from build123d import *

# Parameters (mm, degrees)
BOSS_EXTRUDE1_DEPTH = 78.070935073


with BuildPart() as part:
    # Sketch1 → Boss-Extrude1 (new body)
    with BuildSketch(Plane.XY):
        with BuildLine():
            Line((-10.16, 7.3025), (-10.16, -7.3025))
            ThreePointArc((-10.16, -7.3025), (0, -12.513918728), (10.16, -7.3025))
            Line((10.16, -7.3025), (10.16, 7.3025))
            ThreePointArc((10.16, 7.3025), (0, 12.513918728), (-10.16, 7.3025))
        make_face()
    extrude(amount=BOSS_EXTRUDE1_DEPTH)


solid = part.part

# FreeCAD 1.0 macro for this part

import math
import FreeCAD as App
import Part
import Sketcher

V = App.Vector
Q = App.Units.Quantity

doc = App.newDocument("Part")
params = doc.addObject("Spreadsheet::Sheet", "Params")
for row, (alias, value) in enumerate([
    ("sketch1_height", "0.575 in"),
    ("pad1_length", "78.070935 mm"),
], start=1):
    params.set(f"A{row}", alias)
    params.set(f"B{row}", "=" + value)
    params.setAlias(f"B{row}", alias)

body = doc.addObject("PartDesign::Body", "Body")

# Sketch on XY plane
sketch1 = body.newObject("Sketcher::SketchObject", "Sketch")
sketch1.AttachmentSupport = (doc.getObject("XY_Plane"), [""])
sketch1.MapMode = "FlatFace"
sketch1.addGeometry(Part.LineSegment(V(-10.16, 7.3025, 0), V(-10.16, -7.3025, 0)), False)
sketch1.addGeometry(Part.ArcOfCircle(Part.Circle(V(0, -0.004419, 0), V(0, 0, 1), 12.5095), math.radians(-144.309743), math.radians(-35.690257)), False)
sketch1.addGeometry(Part.LineSegment(V(10.16, -7.3025, 0), V(10.16, 7.3025, 0)), False)
sketch1.addGeometry(Part.ArcOfCircle(Part.Circle(V(0, 0.004419, 0), V(0, 0, 1), 12.5095), math.radians(35.690257), math.radians(144.309743)), False)
sketch1.addConstraint(Sketcher.Constraint("Coincident", 0, 2, 1, 1))
sketch1.addConstraint(Sketcher.Constraint("Coincident", 1, 2, 2, 1))
sketch1.addConstraint(Sketcher.Constraint("Coincident", 2, 2, 3, 1))
sketch1.addConstraint(Sketcher.Constraint("Coincident", 3, 2, 0, 1))
sketch1.addConstraint(Sketcher.Constraint("Vertical", 0))
sketch1.addConstraint(Sketcher.Constraint("Vertical", 2))
sketch1.addConstraint(Sketcher.Constraint("Equal", 1, 3))
sketch1.addConstraint(Sketcher.Constraint("Symmetric", 1, 3, 3, 3, -1, 1))
sketch1.addConstraint(Sketcher.Constraint("Symmetric", 0, 2, 1, 2, -2))
sketch1.addConstraint(Sketcher.Constraint("DistanceX", 0, 2, -1, 1, Q("0.4 in")))
sketch1.addConstraint(Sketcher.Constraint("Radius", 1, Q("0.4925 in")))
sketch1.addConstraint(Sketcher.Constraint("DistanceY", 0, 2, 0, 1, Q("0.575 in")))
sketch1.setExpression("Constraints[11]", "Params.sketch1_height")
pad1 = body.newObject("PartDesign::Pad", "Pad")
pad1.Profile = sketch1
pad1.setExpression("Length", "Params.pad1_length")

doc.recompute()
